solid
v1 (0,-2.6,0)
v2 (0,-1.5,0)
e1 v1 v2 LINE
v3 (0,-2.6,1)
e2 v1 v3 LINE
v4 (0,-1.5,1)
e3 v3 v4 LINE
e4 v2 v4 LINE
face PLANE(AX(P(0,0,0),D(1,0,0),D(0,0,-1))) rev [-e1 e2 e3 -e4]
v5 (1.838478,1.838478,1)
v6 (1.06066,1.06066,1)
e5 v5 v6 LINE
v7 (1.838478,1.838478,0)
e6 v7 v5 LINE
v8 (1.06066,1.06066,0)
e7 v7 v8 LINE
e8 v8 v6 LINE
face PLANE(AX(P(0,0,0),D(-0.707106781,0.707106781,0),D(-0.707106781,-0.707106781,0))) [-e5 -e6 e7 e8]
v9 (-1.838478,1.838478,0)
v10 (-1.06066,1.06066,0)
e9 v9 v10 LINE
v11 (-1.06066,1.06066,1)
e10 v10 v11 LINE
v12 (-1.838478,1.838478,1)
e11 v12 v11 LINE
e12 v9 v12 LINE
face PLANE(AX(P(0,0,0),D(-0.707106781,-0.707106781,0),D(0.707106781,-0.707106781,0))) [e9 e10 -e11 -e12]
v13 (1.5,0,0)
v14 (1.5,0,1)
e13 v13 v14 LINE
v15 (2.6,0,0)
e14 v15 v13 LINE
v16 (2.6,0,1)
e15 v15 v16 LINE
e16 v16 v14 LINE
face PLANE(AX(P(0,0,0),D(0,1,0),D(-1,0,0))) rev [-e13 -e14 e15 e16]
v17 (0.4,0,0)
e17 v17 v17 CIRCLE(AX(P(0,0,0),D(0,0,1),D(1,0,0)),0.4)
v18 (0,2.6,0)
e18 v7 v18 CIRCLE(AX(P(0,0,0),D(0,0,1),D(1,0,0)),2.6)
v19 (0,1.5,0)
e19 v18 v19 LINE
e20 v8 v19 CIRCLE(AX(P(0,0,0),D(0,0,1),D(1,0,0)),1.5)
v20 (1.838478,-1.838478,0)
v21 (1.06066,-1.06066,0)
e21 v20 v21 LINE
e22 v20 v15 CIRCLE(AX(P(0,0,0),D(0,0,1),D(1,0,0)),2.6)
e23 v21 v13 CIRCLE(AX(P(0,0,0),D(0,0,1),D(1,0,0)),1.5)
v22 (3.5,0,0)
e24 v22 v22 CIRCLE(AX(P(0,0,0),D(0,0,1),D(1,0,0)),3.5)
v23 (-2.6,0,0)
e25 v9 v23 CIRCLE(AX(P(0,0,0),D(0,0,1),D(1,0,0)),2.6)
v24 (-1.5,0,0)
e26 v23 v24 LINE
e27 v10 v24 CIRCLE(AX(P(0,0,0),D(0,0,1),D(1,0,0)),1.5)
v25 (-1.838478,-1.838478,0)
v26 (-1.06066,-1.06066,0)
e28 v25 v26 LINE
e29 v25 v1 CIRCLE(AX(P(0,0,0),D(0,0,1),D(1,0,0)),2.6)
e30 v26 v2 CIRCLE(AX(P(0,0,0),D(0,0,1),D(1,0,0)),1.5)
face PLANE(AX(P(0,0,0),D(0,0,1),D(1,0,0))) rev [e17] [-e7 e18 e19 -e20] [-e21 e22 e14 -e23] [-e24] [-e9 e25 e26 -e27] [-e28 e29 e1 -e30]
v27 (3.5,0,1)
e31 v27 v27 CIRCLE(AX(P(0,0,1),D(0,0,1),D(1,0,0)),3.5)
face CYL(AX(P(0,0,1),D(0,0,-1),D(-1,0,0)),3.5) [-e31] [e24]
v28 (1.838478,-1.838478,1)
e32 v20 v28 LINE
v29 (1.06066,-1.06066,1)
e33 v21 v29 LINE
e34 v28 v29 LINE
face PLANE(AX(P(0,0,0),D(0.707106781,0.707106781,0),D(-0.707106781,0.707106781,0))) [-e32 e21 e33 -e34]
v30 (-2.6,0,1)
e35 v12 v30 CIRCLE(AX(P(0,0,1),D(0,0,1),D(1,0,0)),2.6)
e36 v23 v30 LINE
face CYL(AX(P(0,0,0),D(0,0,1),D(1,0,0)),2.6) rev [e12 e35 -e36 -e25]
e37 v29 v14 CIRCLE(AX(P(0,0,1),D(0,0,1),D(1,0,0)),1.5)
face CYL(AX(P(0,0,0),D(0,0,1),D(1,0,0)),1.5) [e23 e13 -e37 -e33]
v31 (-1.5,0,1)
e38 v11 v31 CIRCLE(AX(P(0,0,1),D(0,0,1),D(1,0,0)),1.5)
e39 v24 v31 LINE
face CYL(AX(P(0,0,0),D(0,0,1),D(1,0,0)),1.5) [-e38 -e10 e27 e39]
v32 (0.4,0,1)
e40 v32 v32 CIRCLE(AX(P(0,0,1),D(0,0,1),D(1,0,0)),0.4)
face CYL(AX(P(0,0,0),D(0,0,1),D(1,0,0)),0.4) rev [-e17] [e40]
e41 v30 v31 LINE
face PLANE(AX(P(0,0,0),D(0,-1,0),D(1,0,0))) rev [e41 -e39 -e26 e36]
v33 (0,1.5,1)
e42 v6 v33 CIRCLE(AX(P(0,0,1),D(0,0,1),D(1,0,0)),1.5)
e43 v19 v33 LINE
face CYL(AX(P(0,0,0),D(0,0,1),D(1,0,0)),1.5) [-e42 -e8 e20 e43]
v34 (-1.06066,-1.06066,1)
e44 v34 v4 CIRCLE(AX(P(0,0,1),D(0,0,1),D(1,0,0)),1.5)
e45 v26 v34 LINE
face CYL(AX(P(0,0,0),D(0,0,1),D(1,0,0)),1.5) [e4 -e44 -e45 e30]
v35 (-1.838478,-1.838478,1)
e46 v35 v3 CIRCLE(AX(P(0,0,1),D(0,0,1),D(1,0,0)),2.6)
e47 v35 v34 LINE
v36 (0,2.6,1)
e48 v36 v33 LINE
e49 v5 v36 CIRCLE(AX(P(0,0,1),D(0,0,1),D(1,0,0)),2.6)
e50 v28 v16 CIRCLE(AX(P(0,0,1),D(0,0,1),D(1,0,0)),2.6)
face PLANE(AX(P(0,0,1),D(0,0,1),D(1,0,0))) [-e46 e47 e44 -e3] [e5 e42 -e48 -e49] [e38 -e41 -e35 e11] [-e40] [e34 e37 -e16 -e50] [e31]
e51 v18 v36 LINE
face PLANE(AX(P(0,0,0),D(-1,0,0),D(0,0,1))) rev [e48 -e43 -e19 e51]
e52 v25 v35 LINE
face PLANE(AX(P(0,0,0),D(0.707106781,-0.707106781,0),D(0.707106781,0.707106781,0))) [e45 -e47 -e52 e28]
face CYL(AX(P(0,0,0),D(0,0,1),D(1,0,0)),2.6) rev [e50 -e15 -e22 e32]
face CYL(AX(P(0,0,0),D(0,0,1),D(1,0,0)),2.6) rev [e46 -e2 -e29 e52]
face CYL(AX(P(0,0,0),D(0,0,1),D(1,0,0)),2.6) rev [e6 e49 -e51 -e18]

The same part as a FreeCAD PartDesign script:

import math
import FreeCAD as App
import Part
import Sketcher

V = App.Vector
Q = App.Units.Quantity

doc = App.newDocument("Part")
body = doc.addObject("PartDesign::Body", "Body")

# Sketch on XY plane
sketch1 = body.newObject("Sketcher::SketchObject", "Sketch")
sketch1.AttachmentSupport = (doc.getObject("XY_Plane"), [""])
sketch1.MapMode = "FlatFace"
sketch1.addGeometry(Part.Circle(V(0, 0, 0), V(0, 0, 1), 3.5), False)
sketch1.addConstraint(Sketcher.Constraint("Coincident", 0, 3, -1, 1))
sketch1.addConstraint(Sketcher.Constraint("Diameter", 0, 7.0))
pad1 = body.newObject("PartDesign::Pad", "Pad")
pad1.Profile = sketch1
pad1.Length = 1

# Sketch on XY plane
sketch2 = body.newObject("Sketcher::SketchObject", "Sketch001")
sketch2.AttachmentSupport = (doc.getObject("XY_Plane"), [""])
sketch2.MapMode = "FlatFace"
sketch2.AttachmentOffset = App.Placement(V(0, 0, 1), App.Rotation())
sketch2.addGeometry(Part.Circle(V(0, 0, 0), V(0, 0, 1), 0.4), False)
sketch2.addConstraint(Sketcher.Constraint("Coincident", 0, 3, -1, 1))
sketch2.addConstraint(Sketcher.Constraint("Diameter", 0, 0.8))
pocket1 = body.newObject("PartDesign::Pocket", "Pocket")
pocket1.Profile = sketch2
pocket1.Type = "ThroughAll"

# Sketch on XY plane
sketch3 = body.newObject("Sketcher::SketchObject", "Sketch002")
sketch3.AttachmentSupport = (doc.getObject("XY_Plane"), [""])
sketch3.MapMode = "FlatFace"
sketch3.AttachmentOffset = App.Placement(V(0, 0, 1), App.Rotation())
sketch3.addGeometry(Part.LineSegment(V(-1.1, -1.1, 0), V(-1.8, -1.8, 0)), False)
sketch3.addGeometry(Part.ArcOfCircle(Part.Circle(V(0, 0, 0), V(0, 0, 1), 2.6), math.radians(-135), math.radians(-90)), False)
sketch3.addGeometry(Part.LineSegment(V(0, -2.6, 0), V(0, -1.5, 0)), False)
sketch3.addGeometry(Part.ArcOfCircle(Part.Circle(V(0, 0, 0), V(0, 0, 1), 1.5), math.radians(-135), math.radians(-90)), False)
sketch3.addConstraint(Sketcher.Constraint("Coincident", 0, 2, 1, 1))
sketch3.addConstraint(Sketcher.Constraint("Coincident", 1, 2, 2, 1))
sketch3.addConstraint(Sketcher.Constraint("Coincident", 2, 2, 3, 2))
sketch3.addConstraint(Sketcher.Constraint("Coincident", 3, 1, 0, 1))
sketch3.addConstraint(Sketcher.Constraint("Vertical", 2))
sketch3.addConstraint(Sketcher.Constraint("Coincident", 1, 3, -1, 1))
sketch3.addConstraint(Sketcher.Constraint("Coincident", 3, 3, -1, 1))
sketch3.addConstraint(Sketcher.Constraint("PointOnObject", 1, 2, -2))
sketch3.addConstraint(Sketcher.Constraint("Radius", 1, 2.6))
sketch3.addConstraint(Sketcher.Constraint("Radius", 3, 1.5))
sketch3.addConstraint(Sketcher.Constraint("Angle", 0, Q("-135 deg")))
sketch3.addConstraint(Sketcher.Constraint("DistanceX", 3, 1, -1, 1, 1.06066))
pocket2 = body.newObject("PartDesign::Pocket", "Pocket001")
pocket2.Profile = sketch3
pocket2.Type = "ThroughAll"
doc.recompute()

polarpattern = body.newObject("PartDesign::PolarPattern", "PolarPattern")
polarpattern.Originals = [pocket2]
polarpattern.Axis = (doc.getObject("Z_Axis"), [""])
polarpattern.Angle = 360
polarpattern.Occurrences = 4
body.Tip = polarpattern

doc.recompute()
